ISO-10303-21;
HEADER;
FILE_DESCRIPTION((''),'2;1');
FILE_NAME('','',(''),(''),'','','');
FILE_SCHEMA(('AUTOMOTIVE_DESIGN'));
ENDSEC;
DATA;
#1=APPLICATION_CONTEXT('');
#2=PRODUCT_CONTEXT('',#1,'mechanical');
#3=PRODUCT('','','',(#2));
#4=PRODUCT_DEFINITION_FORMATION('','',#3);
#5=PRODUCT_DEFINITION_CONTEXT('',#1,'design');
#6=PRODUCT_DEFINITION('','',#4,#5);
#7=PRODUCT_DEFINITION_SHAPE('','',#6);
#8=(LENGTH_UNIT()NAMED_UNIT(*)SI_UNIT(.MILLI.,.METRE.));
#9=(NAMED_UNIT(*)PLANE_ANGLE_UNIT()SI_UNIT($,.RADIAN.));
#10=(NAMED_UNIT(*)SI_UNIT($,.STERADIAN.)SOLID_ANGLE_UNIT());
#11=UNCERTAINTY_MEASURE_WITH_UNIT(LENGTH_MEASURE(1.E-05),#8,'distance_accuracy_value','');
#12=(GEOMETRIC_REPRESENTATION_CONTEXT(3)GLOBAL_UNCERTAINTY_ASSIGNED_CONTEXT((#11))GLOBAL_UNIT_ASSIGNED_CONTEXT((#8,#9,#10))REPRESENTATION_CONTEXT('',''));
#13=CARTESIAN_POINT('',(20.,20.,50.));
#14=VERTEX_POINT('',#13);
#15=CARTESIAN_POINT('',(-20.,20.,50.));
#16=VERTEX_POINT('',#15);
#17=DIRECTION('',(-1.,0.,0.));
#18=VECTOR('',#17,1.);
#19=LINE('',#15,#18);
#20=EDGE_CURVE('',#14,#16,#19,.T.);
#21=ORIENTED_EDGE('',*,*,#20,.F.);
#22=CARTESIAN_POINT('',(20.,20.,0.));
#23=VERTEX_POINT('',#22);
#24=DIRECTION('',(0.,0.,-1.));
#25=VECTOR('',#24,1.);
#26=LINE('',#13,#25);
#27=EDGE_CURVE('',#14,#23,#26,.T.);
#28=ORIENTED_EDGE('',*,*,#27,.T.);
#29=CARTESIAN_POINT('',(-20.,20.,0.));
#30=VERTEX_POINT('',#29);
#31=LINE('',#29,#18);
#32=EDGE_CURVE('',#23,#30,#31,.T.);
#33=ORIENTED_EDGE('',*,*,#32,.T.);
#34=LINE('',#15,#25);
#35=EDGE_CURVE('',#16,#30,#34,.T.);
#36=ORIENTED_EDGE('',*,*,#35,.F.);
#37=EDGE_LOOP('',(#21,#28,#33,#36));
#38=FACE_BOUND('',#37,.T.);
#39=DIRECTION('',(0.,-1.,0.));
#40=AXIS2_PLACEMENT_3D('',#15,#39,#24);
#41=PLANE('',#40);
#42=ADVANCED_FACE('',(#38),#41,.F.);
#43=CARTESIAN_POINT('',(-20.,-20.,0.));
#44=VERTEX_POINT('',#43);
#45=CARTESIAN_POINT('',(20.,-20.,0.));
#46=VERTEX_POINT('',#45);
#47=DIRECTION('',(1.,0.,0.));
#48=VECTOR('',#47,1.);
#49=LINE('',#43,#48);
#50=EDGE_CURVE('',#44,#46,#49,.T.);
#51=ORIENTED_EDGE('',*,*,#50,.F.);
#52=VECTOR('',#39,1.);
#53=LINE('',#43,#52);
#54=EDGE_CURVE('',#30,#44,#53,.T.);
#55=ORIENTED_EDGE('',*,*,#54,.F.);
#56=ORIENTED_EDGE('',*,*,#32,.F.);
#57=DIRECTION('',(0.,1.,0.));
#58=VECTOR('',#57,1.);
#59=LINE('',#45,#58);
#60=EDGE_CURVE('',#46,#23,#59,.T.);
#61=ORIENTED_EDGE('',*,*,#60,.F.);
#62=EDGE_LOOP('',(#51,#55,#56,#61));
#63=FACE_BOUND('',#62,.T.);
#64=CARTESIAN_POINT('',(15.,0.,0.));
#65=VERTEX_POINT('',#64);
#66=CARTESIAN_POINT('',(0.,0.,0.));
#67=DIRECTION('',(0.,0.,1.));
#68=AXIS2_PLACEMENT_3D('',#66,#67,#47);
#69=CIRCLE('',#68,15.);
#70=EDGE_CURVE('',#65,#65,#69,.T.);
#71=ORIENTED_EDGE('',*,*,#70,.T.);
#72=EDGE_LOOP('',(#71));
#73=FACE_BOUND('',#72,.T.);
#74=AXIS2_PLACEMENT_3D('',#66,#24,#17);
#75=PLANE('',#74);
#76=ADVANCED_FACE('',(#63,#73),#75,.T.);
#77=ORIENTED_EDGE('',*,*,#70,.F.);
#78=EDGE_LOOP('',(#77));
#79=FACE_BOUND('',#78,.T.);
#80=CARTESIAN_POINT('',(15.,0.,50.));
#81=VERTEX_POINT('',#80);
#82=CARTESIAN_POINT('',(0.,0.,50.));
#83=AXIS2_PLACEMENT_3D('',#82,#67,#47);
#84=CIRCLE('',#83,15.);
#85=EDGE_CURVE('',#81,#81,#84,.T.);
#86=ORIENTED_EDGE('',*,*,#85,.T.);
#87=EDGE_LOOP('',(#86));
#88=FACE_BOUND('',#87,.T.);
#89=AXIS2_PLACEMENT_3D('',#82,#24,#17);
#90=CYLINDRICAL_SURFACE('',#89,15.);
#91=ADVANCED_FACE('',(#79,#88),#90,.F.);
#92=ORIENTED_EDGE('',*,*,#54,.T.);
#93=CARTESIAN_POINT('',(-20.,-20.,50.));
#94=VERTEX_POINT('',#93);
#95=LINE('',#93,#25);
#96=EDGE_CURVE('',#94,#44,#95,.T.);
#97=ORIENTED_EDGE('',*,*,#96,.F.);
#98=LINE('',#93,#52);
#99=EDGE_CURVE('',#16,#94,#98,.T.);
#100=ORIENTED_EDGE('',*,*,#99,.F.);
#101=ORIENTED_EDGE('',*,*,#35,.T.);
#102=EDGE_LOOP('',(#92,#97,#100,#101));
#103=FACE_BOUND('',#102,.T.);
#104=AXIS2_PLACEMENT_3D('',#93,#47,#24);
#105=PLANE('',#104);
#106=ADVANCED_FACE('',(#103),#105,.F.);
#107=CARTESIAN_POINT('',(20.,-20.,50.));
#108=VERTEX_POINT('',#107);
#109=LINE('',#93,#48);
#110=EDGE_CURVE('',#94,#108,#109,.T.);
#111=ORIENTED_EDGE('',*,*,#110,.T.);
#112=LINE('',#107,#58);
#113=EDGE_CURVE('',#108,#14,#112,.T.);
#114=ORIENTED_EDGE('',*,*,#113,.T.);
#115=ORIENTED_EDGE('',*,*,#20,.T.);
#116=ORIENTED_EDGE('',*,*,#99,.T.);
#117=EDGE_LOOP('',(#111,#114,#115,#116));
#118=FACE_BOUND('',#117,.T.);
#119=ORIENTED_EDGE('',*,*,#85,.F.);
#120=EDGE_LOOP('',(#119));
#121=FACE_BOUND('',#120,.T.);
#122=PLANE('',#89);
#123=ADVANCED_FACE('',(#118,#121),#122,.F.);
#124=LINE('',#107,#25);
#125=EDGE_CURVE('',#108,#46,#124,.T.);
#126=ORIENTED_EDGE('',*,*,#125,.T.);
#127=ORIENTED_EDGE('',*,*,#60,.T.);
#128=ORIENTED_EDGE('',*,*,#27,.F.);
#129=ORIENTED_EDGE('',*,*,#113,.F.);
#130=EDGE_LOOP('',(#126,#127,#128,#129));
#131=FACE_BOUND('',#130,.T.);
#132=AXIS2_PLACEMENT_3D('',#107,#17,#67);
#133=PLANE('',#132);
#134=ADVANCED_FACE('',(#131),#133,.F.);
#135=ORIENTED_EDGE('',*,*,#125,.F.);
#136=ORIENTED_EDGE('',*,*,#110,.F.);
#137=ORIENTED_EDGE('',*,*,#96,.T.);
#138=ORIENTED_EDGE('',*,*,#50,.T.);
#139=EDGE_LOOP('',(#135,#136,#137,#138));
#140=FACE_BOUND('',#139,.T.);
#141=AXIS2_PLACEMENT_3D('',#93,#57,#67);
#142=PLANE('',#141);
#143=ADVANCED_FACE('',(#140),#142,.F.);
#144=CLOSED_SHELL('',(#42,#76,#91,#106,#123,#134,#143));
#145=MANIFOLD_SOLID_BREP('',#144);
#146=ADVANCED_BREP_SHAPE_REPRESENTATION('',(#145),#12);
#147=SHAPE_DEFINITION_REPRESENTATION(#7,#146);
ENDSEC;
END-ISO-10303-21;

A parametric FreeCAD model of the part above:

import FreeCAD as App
import Part
import Sketcher
from FreeCAD import Vector


def add_polygon(sketch, points):
    """Adds a closed chain of lines whose ends are joined by coincident constraints."""
    first, n = sketch.GeometryCount, len(points)
    for a, b in zip(points, points[1:] + points[:1]):
        sketch.addGeometry(Part.LineSegment(App.Vector(*a, 0), App.Vector(*b, 0)), False)
    for i in range(n):
        sketch.addConstraint(Sketcher.Constraint("Coincident", first + i, 2, first + (i + 1) % n, 1))

doc = App.newDocument("Part")
body = doc.addObject("PartDesign::Body", "Body")

# Sketch on XY plane
sketch1 = body.newObject("Sketcher::SketchObject", "Sketch")
sketch1.AttachmentSupport = (doc.getObject("XY_Plane"), [""])
sketch1.MapMode = "FlatFace"
add_polygon(sketch1, [(-20, 20), (-20, -20), (20, -20), (20, 20)])  # lines 0-3
sketch1.addGeometry(Part.Circle(Vector(0, 0, 0), Vector(0, 0, 1), 15), False)  # 4
sketch1.addConstraint([
    Sketcher.Constraint("Vertical", 0),
    Sketcher.Constraint("Horizontal", 1),
    Sketcher.Constraint("Vertical", 2),
    Sketcher.Constraint("Horizontal", 3),
    Sketcher.Constraint("Coincident", 4, 3, -1, 1),
    Sketcher.Constraint("Symmetric", 0, 2, 2, 2, -1, 1),
    Sketcher.Constraint("Equal", 3, 0),
    Sketcher.Constraint("Diameter", 4, 30.0),
    Sketcher.Constraint("DistanceX", 1, 1, 1, 2, 40.0),
])
pad1 = body.newObject("PartDesign::Pad", "Pad")
pad1.Profile = sketch1
pad1.Length = 50

doc.recompute()
